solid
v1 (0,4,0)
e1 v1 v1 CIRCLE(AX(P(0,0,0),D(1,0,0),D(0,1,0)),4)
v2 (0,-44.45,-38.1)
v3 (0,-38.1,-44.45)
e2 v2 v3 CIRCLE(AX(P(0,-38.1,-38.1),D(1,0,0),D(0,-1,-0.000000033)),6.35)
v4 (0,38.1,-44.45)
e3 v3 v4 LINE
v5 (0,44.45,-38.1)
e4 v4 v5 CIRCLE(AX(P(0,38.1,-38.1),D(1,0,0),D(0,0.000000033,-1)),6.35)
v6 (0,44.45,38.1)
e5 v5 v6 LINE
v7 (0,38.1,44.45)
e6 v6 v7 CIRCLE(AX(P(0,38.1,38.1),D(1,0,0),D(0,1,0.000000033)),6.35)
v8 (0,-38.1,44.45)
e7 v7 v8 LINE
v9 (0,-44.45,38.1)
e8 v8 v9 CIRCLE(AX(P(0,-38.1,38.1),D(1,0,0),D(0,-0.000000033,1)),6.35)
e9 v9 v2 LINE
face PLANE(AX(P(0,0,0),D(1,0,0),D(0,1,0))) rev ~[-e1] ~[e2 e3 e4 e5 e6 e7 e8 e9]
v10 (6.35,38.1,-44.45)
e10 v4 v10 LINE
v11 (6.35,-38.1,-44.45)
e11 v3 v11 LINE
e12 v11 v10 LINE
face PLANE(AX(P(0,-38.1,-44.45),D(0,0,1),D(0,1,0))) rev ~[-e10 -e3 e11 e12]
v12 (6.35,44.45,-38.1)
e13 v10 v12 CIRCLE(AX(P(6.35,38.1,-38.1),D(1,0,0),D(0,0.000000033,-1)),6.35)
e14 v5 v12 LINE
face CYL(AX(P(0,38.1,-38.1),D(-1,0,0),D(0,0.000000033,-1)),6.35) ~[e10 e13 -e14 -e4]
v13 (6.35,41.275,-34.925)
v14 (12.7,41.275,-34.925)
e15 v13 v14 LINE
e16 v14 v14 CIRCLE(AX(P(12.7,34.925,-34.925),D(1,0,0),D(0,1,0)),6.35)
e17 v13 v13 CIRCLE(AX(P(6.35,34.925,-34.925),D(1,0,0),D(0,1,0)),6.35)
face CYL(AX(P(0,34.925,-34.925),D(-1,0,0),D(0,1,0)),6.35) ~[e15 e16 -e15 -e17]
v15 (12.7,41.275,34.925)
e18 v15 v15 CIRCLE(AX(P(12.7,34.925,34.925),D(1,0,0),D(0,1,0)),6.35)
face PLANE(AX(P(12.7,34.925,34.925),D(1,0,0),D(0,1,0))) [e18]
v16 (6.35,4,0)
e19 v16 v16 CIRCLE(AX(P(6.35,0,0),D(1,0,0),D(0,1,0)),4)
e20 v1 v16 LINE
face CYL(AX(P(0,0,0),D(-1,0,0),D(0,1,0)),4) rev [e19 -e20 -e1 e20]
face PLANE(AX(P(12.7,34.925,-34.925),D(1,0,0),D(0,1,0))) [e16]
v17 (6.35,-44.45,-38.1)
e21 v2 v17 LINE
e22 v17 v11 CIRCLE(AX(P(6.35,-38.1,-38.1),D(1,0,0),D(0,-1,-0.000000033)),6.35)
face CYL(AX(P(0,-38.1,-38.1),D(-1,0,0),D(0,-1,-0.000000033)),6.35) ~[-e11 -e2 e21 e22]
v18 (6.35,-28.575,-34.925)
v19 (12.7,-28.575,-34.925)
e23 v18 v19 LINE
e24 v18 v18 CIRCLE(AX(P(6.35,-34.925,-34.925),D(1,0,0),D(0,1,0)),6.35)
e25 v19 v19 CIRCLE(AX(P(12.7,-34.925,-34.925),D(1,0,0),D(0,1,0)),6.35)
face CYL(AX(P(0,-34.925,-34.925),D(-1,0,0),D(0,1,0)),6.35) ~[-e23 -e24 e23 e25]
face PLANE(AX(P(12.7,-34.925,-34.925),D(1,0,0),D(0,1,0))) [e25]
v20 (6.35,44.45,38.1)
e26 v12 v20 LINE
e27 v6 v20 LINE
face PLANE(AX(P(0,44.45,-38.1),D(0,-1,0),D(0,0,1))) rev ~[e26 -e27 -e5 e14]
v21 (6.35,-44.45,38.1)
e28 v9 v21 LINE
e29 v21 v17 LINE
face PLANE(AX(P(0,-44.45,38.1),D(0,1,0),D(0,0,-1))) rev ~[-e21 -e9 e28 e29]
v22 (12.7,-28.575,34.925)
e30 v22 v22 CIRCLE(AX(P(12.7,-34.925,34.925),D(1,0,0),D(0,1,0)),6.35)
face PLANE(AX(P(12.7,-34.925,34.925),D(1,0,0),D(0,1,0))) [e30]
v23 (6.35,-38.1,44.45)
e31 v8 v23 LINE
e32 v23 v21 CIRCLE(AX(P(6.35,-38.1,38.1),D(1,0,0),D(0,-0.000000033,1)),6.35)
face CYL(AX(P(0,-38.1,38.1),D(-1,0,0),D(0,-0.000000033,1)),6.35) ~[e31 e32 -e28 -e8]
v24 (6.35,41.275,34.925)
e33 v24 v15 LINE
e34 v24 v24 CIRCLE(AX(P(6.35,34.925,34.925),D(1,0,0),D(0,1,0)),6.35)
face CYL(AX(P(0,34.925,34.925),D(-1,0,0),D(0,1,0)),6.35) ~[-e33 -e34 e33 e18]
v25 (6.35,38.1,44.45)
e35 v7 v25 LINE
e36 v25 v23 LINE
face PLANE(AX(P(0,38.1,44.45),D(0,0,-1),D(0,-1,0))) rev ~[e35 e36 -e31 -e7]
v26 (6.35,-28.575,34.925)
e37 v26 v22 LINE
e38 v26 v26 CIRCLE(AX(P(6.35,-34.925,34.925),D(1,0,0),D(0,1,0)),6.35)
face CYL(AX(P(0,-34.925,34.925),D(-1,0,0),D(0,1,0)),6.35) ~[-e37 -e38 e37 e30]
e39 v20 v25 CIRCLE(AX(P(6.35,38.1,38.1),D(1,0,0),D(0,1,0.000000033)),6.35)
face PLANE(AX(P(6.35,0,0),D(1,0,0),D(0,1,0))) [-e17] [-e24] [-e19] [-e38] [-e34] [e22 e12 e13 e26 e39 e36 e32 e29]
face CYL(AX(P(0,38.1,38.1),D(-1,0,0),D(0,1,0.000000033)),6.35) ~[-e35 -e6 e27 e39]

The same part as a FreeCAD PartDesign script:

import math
import FreeCAD as App
import Part
import Sketcher
from FreeCAD import Vector
Q = App.Units.Quantity

doc = App.newDocument("Part")
body = doc.addObject("PartDesign::Body", "Body")

sketch1 = body.newObject("Sketcher::SketchObject", "Sketch")
sketch1.AttachmentSupport = (doc.getObject("YZ_Plane"), [""])
sketch1.MapMode = "FlatFace"
sketch1.addGeometry(Part.LineSegment(Vector(-38.1, -44.5, 0), Vector(38.1, -44.5, 0)), False)
sketch1.addGeometry(Part.ArcOfCircle(Part.Circle(Vector(38.1, -38.1, 0), Vector(0, 0, 1), 6.4), math.radians(-90), math.radians(0)), False)
sketch1.addGeometry(Part.LineSegment(Vector(44.5, -38.1, 0), Vector(44.5, 38.1, 0)), False)
sketch1.addGeometry(Part.ArcOfCircle(Part.Circle(Vector(38.1, 38.1, 0), Vector(0, 0, 1), 6.4), math.radians(0), math.radians(90)), False)
sketch1.addGeometry(Part.LineSegment(Vector(38.1, 44.5, 0), Vector(-38.1, 44.5, 0)), False)
sketch1.addGeometry(Part.ArcOfCircle(Part.Circle(Vector(-38.1, 38.1, 0), Vector(0, 0, 1), 6.4), math.radians(90), math.radians(180)), False)
sketch1.addGeometry(Part.LineSegment(Vector(-44.5, 38.1, 0), Vector(-44.5, -38.1, 0)), False)
sketch1.addGeometry(Part.ArcOfCircle(Part.Circle(Vector(-38.1, -38.1, 0), Vector(0, 0, 1), 6.4), math.radians(-180), math.radians(-90)), False)
sketch1.addGeometry(Part.Circle(Vector(-34.9, -34.9, 0), Vector(0, 0, 1), 6.3), False)
sketch1.addGeometry(Part.Circle(Vector(34.9, -34.9, 0), Vector(0, 0, 1), 6.3), False)
sketch1.addGeometry(Part.Circle(Vector(-34.9, 34.9, 0), Vector(0, 0, 1), 6.3), False)
sketch1.addGeometry(Part.Circle(Vector(0, 0, 0), Vector(0, 0, 1), 4), False)
sketch1.addGeometry(Part.Circle(Vector(34.9, 34.9, 0), Vector(0, 0, 1), 6.3), False)
sketch1.addConstraint(Sketcher.Constraint("Tangent", 0, 2, 1, 1))
sketch1.addConstraint(Sketcher.Constraint("Tangent", 1, 2, 2, 1))
sketch1.addConstraint(Sketcher.Constraint("Tangent", 2, 2, 3, 1))
sketch1.addConstraint(Sketcher.Constraint("Tangent", 3, 2, 4, 1))
sketch1.addConstraint(Sketcher.Constraint("Tangent", 4, 2, 5, 1))
sketch1.addConstraint(Sketcher.Constraint("Tangent", 5, 2, 6, 1))
sketch1.addConstraint(Sketcher.Constraint("Tangent", 6, 2, 7, 1))
sketch1.addConstraint(Sketcher.Constraint("Tangent", 7, 2, 0, 1))
sketch1.addConstraint(Sketcher.Constraint("Horizontal", 0))
sketch1.addConstraint(Sketcher.Constraint("Vertical", 2))
sketch1.addConstraint(Sketcher.Constraint("Horizontal", 4))
sketch1.addConstraint(Sketcher.Constraint("Vertical", 6))
sketch1.addConstraint(Sketcher.Constraint("Coincident", 11, 3, -1, 1))
sketch1.addConstraint(Sketcher.Constraint("Equal", 1, 3))
sketch1.addConstraint(Sketcher.Constraint("Equal", 3, 5))
sketch1.addConstraint(Sketcher.Constraint("Equal", 5, 7))
sketch1.addConstraint(Sketcher.Constraint("Equal", 7, 8))
sketch1.addConstraint(Sketcher.Constraint("Equal", 8, 9))
sketch1.addConstraint(Sketcher.Constraint("Equal", 9, 10))
sketch1.addConstraint(Sketcher.Constraint("Equal", 10, 12))
sketch1.addConstraint(Sketcher.Constraint("Symmetric", 1, 3, 5, 3, -1, 1))
sketch1.addConstraint(Sketcher.Constraint("Symmetric", 9, 3, 10, 3, -1, 1))
sketch1.addConstraint(Sketcher.Constraint("Symmetric", 8, 3, 12, 3, -1, 1))
sketch1.addConstraint(Sketcher.Constraint("Symmetric", 8, 3, 9, 3, -2))
sketch1.addConstraint(Sketcher.Constraint("Equal", 4, 2))
sketch1.addConstraint(Sketcher.Constraint("Diameter", 8, Q("0.5 in")))
sketch1.addConstraint(Sketcher.Constraint("DistanceX", 0, 1, 0, 2, Q("3 in")))
sketch1.addConstraint(Sketcher.Constraint("Diameter", 11, Q("8 mm")))
sketch1.addConstraint(Sketcher.Constraint("DistanceX", 8, 3, 9, 3, Q("2.75 in")))
sketch1.addConstraint(Sketcher.Constraint("DistanceY", 8, 3, 10, 3, Q("2.75 in")))
pad1 = body.newObject("PartDesign::Pad", "Pad")
pad1.Profile = sketch1
pad1.Length = Q("0.25 in")

sketch2 = body.newObject("Sketcher::SketchObject", "Sketch001")
sketch2.AttachmentSupport = (doc.getObject("YZ_Plane"), [""])
sketch2.MapMode = "FlatFace"
sketch2.addGeometry(Part.Circle(Vector(-35, 35, 0), Vector(0, 0, 1), 6), False)
sketch2.addGeometry(Part.Circle(Vector(35, 35, 0), Vector(0, 0, 1), 6), False)
sketch2.addGeometry(Part.Circle(Vector(35, -35, 0), Vector(0, 0, 1), 6), False)
sketch2.addGeometry(Part.Circle(Vector(-35, -35, 0), Vector(0, 0, 1), 6), False)
sketch2.addConstraint(Sketcher.Constraint("Equal", 0, 1))
sketch2.addConstraint(Sketcher.Constraint("Equal", 1, 2))
sketch2.addConstraint(Sketcher.Constraint("Equal", 2, 3))
sketch2.addConstraint(Sketcher.Constraint("Symmetric", 0, 3, 2, 3, -1, 1))
sketch2.addConstraint(Sketcher.Constraint("Symmetric", 1, 3, 3, 3, -1, 1))
sketch2.addConstraint(Sketcher.Constraint("Symmetric", 0, 3, 1, 3, -2))
sketch2.addConstraint(Sketcher.Constraint("Diameter", 0, Q("0.5 in")))
sketch2.addConstraint(Sketcher.Constraint("DistanceX", 0, 3, 1, 3, Q("2.75 in")))
sketch2.addConstraint(Sketcher.Constraint("DistanceY", 2, 3, 1, 3, Q("2.75 in")))
pad2 = body.newObject("PartDesign::Pad", "Pad001")
pad2.Profile = sketch2
pad2.Length = Q("0.5 in")

doc.recompute()
